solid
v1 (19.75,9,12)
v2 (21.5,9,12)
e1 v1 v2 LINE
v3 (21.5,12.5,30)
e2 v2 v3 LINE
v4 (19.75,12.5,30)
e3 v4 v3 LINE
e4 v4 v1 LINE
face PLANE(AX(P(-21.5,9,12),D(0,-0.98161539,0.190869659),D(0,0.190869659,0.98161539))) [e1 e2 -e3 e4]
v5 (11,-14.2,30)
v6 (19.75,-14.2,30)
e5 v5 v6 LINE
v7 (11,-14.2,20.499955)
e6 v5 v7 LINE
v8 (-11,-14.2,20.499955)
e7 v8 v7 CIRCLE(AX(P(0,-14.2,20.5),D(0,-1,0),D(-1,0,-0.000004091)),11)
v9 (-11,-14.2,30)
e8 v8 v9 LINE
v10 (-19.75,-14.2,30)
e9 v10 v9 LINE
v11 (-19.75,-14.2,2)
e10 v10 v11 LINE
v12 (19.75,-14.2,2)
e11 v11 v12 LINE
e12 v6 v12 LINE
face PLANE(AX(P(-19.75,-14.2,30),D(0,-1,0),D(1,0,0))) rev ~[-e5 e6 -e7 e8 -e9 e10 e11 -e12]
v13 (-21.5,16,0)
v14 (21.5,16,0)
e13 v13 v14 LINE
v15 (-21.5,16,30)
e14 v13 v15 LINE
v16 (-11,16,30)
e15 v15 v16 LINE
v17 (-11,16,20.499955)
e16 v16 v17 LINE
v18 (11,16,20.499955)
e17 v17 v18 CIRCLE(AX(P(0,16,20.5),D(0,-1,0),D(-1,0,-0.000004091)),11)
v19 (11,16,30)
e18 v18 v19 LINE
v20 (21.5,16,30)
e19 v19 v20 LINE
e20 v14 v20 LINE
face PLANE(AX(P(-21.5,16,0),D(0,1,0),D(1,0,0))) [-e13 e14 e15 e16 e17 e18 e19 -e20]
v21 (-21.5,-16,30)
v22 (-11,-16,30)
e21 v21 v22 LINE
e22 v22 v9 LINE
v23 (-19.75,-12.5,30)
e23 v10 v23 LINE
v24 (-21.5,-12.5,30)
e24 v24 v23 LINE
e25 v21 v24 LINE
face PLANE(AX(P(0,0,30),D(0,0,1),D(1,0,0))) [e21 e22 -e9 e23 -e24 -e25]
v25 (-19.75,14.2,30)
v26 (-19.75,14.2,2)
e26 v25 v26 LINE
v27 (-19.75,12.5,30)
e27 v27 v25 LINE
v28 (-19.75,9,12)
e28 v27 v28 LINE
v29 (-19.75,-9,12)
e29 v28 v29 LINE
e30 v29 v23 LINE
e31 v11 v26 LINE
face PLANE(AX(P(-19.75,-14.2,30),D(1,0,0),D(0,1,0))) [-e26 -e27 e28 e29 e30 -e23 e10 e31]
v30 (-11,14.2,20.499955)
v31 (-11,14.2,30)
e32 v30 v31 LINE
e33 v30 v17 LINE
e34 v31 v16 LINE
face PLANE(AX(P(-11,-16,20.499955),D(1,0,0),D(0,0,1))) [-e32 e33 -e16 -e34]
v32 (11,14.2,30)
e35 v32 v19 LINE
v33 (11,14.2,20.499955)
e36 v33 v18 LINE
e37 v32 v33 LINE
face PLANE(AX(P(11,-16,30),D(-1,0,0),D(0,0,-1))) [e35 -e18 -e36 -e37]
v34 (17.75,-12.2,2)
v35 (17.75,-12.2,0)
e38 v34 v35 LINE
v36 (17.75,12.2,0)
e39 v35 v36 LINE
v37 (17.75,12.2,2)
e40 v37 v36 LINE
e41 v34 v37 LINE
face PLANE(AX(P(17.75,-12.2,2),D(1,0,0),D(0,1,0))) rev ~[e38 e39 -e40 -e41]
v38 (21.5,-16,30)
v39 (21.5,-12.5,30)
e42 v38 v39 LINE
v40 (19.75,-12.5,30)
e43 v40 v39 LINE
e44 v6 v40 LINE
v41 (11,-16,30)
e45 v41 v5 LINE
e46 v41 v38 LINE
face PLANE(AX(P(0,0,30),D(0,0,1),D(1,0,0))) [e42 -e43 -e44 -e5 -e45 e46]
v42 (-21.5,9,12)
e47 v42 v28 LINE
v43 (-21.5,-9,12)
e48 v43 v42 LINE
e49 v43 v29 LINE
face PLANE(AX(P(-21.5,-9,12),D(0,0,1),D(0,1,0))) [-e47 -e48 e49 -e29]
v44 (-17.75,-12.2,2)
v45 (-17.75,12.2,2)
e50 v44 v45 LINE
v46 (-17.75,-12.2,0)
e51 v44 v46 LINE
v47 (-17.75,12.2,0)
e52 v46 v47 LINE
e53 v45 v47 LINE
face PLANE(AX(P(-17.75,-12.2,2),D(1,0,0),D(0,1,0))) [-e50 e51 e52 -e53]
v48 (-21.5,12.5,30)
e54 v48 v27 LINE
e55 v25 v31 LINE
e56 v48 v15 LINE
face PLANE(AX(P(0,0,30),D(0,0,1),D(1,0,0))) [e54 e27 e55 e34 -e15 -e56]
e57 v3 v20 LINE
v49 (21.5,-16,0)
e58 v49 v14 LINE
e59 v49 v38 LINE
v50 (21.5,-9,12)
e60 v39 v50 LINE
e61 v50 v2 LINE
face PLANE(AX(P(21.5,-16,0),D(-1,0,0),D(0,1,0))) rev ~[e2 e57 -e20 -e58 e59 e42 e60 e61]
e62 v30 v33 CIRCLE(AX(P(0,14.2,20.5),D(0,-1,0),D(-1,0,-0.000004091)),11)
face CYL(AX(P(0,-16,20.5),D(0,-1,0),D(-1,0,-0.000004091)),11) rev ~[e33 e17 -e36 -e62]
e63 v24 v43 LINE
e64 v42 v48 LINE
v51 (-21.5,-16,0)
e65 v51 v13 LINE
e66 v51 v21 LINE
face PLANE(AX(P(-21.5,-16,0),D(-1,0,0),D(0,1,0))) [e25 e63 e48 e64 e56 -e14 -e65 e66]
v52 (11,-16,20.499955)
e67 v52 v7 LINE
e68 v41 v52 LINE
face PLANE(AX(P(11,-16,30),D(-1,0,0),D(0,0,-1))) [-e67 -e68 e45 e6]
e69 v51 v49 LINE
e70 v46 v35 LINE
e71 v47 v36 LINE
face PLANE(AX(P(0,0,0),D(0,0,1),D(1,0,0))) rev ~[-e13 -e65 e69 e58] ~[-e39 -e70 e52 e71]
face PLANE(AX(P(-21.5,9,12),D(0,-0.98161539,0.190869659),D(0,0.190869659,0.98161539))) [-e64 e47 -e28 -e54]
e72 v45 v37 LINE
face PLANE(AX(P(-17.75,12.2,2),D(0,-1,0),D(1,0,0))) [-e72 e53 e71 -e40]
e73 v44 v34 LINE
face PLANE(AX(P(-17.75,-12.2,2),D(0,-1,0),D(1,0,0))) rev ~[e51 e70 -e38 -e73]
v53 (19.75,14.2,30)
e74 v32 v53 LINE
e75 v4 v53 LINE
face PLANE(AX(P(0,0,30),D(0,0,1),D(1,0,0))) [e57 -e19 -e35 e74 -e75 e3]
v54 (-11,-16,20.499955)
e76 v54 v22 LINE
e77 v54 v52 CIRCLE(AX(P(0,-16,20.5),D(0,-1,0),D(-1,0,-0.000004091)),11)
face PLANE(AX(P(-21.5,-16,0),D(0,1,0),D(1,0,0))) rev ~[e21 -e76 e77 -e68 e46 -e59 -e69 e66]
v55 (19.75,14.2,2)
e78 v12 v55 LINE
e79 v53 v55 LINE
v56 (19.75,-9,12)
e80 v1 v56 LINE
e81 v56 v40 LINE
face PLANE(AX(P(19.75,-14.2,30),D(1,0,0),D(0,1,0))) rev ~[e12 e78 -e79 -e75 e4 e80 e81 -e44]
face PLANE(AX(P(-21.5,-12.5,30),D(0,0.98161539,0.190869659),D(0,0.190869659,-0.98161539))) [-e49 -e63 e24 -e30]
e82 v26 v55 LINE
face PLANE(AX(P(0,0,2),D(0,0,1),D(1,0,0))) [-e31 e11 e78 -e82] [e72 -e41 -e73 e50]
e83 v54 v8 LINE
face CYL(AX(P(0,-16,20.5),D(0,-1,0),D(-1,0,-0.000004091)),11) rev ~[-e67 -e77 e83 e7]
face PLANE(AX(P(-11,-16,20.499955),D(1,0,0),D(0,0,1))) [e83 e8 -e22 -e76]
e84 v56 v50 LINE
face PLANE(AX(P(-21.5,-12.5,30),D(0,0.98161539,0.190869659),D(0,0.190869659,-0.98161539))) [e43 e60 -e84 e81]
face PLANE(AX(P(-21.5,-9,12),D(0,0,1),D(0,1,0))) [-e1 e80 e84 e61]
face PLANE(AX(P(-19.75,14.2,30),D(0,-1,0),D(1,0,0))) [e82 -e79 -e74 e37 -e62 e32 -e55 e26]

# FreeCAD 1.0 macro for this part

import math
import FreeCAD as App
import Part
import Sketcher

doc = App.newDocument("Part")
params = doc.addObject("Spreadsheet::Sheet", "Params")
for row, (alias, value) in enumerate([
    ("sketch1_width", "43 mm"),
    ("sketch1_height", "32 mm"),
    ("pad1_length", "30 mm"),
    ("sketch2_width", "39.5 mm"),
    ("sketch2_height", "28.4 mm"),
    ("pocket1_length", "28 mm"),
    ("sketch3_radius", "11 mm"),
    ("sketch4_width", "35.5 mm"),
    ("sketch4_height", "24.4 mm"),
    ("sketch5_width", "25 mm"),
    ("sketch5_width2", "18 mm"),
], start=1):
    params.set(f"A{row}", alias)
    params.set(f"B{row}", "=" + value)
    params.setAlias(f"B{row}", alias)

body = doc.addObject("PartDesign::Body", "Body")

# Sketch on XY plane
sketch1 = doc.addObject("Sketcher::SketchObject", "Sketch")
body.addObject(sketch1)
sketch1.AttachmentSupport = (doc.XY_Plane, [""])
sketch1.MapMode = "FlatFace"
sketch1.addGeometry(Part.LineSegment(App.Vector(-22, 16, 0), App.Vector(-22, -16, 0)), False)
sketch1.addGeometry(Part.LineSegment(App.Vector(-22, -16, 0), App.Vector(22, -16, 0)), False)
sketch1.addGeometry(Part.LineSegment(App.Vector(22, -16, 0), App.Vector(22, 16, 0)), False)
sketch1.addGeometry(Part.LineSegment(App.Vector(22, 16, 0), App.Vector(-22, 16, 0)), False)
sketch1.addConstraint(Sketcher.Constraint("Coincident", 0, 2, 1, 1))
sketch1.addConstraint(Sketcher.Constraint("Coincident", 1, 2, 2, 1))
sketch1.addConstraint(Sketcher.Constraint("Coincident", 2, 2, 3, 1))
sketch1.addConstraint(Sketcher.Constraint("Coincident", 3, 2, 0, 1))
sketch1.addConstraint(Sketcher.Constraint("Vertical", 0))
sketch1.addConstraint(Sketcher.Constraint("Horizontal", 1))
sketch1.addConstraint(Sketcher.Constraint("Vertical", 2))
sketch1.addConstraint(Sketcher.Constraint("Horizontal", 3))
sketch1.addConstraint(Sketcher.Constraint("Symmetric", 0, 2, 2, 2, -1, 1))
sketch1.addConstraint(Sketcher.Constraint("DistanceX", 1, 1, 1, 2, 43.0))
sketch1.addConstraint(Sketcher.Constraint("DistanceY", 0, 2, 0, 1, 32.0))
sketch1.setExpression("Constraints[9]", "Params.sketch1_width")
sketch1.setExpression("Constraints[10]", "Params.sketch1_height")
pad1 = doc.addObject("PartDesign::Pad", "Pad")
body.addObject(pad1)
pad1.Profile = sketch1
pad1.setExpression("Length", "Params.pad1_length")

# Sketch on XY plane
sketch2 = doc.addObject("Sketcher::SketchObject", "Sketch001")
body.addObject(sketch2)
sketch2.AttachmentSupport = (doc.XY_Plane, [""])
sketch2.MapMode = "FlatFace"
sketch2.AttachmentOffset = App.Placement(App.Vector(0, 0, 30), App.Rotation())
sketch2.addGeometry(Part.LineSegment(App.Vector(-20, 14, 0), App.Vector(-20, -14, 0)), False)
sketch2.addGeometry(Part.LineSegment(App.Vector(-20, -14, 0), App.Vector(20, -14, 0)), False)
sketch2.addGeometry(Part.LineSegment(App.Vector(20, -14, 0), App.Vector(20, 14, 0)), False)
sketch2.addGeometry(Part.LineSegment(App.Vector(20, 14, 0), App.Vector(-20, 14, 0)), False)
sketch2.addConstraint(Sketcher.Constraint("Coincident", 0, 2, 1, 1))
sketch2.addConstraint(Sketcher.Constraint("Coincident", 1, 2, 2, 1))
sketch2.addConstraint(Sketcher.Constraint("Coincident", 2, 2, 3, 1))
sketch2.addConstraint(Sketcher.Constraint("Coincident", 3, 2, 0, 1))
sketch2.addConstraint(Sketcher.Constraint("Vertical", 0))
sketch2.addConstraint(Sketcher.Constraint("Horizontal", 1))
sketch2.addConstraint(Sketcher.Constraint("Vertical", 2))
sketch2.addConstraint(Sketcher.Constraint("Horizontal", 3))
sketch2.addConstraint(Sketcher.Constraint("Symmetric", 0, 2, 2, 2, -1, 1))
sketch2.addConstraint(Sketcher.Constraint("DistanceX", 1, 1, 1, 2, 39.5))
sketch2.addConstraint(Sketcher.Constraint("DistanceY", 0, 2, 0, 1, 28.4))
sketch2.setExpression("Constraints[9]", "Params.sketch2_width")
sketch2.setExpression("Constraints[10]", "Params.sketch2_height")
pocket1 = doc.addObject("PartDesign::Pocket", "Pocket")
body.addObject(pocket1)
pocket1.Profile = sketch2
pocket1.setExpression("Length", "Params.pocket1_length")

# Sketch on XZ plane
sketch3 = doc.addObject("Sketcher::SketchObject", "Sketch002")
body.addObject(sketch3)
sketch3.AttachmentSupport = (doc.XZ_Plane, [""])
sketch3.MapMode = "FlatFace"
sketch3.AttachmentOffset = App.Placement(App.Vector(0, 0, 16), App.Rotation())
sketch3.addGeometry(Part.LineSegment(App.Vector(11, 30, 0), App.Vector(-11, 30, 0)), False)
sketch3.addGeometry(Part.LineSegment(App.Vector(-11, 30, 0), App.Vector(-11, 20, 0)), False)
sketch3.addGeometry(Part.ArcOfCircle(Part.Circle(App.Vector(0, 20, 0), App.Vector(0, 0, 1), 11), math.radians(-180), math.radians(0)), False)
sketch3.addGeometry(Part.LineSegment(App.Vector(11, 20, 0), App.Vector(11, 30, 0)), False)
sketch3.addConstraint(Sketcher.Constraint("Coincident", 0, 2, 1, 1))
sketch3.addConstraint(Sketcher.Constraint("Coincident", 1, 2, 2, 1))
sketch3.addConstraint(Sketcher.Constraint("Coincident", 2, 2, 3, 1))
sketch3.addConstraint(Sketcher.Constraint("Coincident", 3, 2, 0, 1))
sketch3.addConstraint(Sketcher.Constraint("Horizontal", 0))
sketch3.addConstraint(Sketcher.Constraint("Vertical", 1))
sketch3.addConstraint(Sketcher.Constraint("Vertical", 3))
sketch3.addConstraint(Sketcher.Constraint("Symmetric", 1, 2, 2, 2, -2))
sketch3.addConstraint(Sketcher.Constraint("Radius", 2, 11.0))
sketch3.addConstraint(Sketcher.Constraint("DistanceY", -1, 1, 0, 2, 30.0))
sketch3.addConstraint(Sketcher.Constraint("DistanceY", -1, 1, 2, 3, 20.5))
sketch3.addConstraint(Sketcher.Constraint("DistanceY", 1, 2, 1, 1, 9.500045))
sketch3.setExpression("Constraints[8]", "Params.sketch3_radius")
pocket2 = doc.addObject("PartDesign::Pocket", "Pocket001")
body.addObject(pocket2)
pocket2.Profile = sketch3
pocket2.Type = "ThroughAll"

# Sketch on XY plane
sketch4 = doc.addObject("Sketcher::SketchObject", "Sketch003")
body.addObject(sketch4)
sketch4.AttachmentSupport = (doc.XY_Plane, [""])
sketch4.MapMode = "FlatFace"
sketch4.AttachmentOffset = App.Placement(App.Vector(0, 0, 2), App.Rotation())
sketch4.addGeometry(Part.LineSegment(App.Vector(-18, 12, 0), App.Vector(-18, -12, 0)), False)
sketch4.addGeometry(Part.LineSegment(App.Vector(-18, -12, 0), App.Vector(18, -12, 0)), False)
sketch4.addGeometry(Part.LineSegment(App.Vector(18, -12, 0), App.Vector(18, 12, 0)), False)
sketch4.addGeometry(Part.LineSegment(App.Vector(18, 12, 0), App.Vector(-18, 12, 0)), False)
sketch4.addConstraint(Sketcher.Constraint("Coincident", 0, 2, 1, 1))
sketch4.addConstraint(Sketcher.Constraint("Coincident", 1, 2, 2, 1))
sketch4.addConstraint(Sketcher.Constraint("Coincident", 2, 2, 3, 1))
sketch4.addConstraint(Sketcher.Constraint("Coincident", 3, 2, 0, 1))
sketch4.addConstraint(Sketcher.Constraint("Vertical", 0))
sketch4.addConstraint(Sketcher.Constraint("Horizontal", 1))
sketch4.addConstraint(Sketcher.Constraint("Vertical", 2))
sketch4.addConstraint(Sketcher.Constraint("Horizontal", 3))
sketch4.addConstraint(Sketcher.Constraint("Symmetric", 0, 2, 2, 2, -1, 1))
sketch4.addConstraint(Sketcher.Constraint("DistanceX", 1, 1, 1, 2, 35.5))
sketch4.addConstraint(Sketcher.Constraint("DistanceY", 0, 2, 0, 1, 24.4))
sketch4.setExpression("Constraints[9]", "Params.sketch4_width")
sketch4.setExpression("Constraints[10]", "Params.sketch4_height")
pocket3 = doc.addObject("PartDesign::Pocket", "Pocket002")
body.addObject(pocket3)
pocket3.Profile = sketch4
pocket3.Type = "ThroughAll"

# Sketch on YZ plane
sketch5 = doc.addObject("Sketcher::SketchObject", "Sketch004")
body.addObject(sketch5)
sketch5.AttachmentSupport = (doc.YZ_Plane, [""])
sketch5.MapMode = "FlatFace"
sketch5.AttachmentOffset = App.Placement(App.Vector(0, 0, -21.5), App.Rotation())
sketch5.addGeometry(Part.LineSegment(App.Vector(-12, 30, 0), App.Vector(12, 30, 0)), False)
sketch5.addGeometry(Part.LineSegment(App.Vector(12, 30, 0), App.Vector(9, 12, 0)), False)
sketch5.addGeometry(Part.LineSegment(App.Vector(9, 12, 0), App.Vector(-9, 12, 0)), False)
sketch5.addGeometry(Part.LineSegment(App.Vector(-9, 12, 0), App.Vector(-12, 30, 0)), False)
sketch5.addConstraint(Sketcher.Constraint("Coincident", 0, 2, 1, 1))
sketch5.addConstraint(Sketcher.Constraint("Coincident", 1, 2, 2, 1))
sketch5.addConstraint(Sketcher.Constraint("Coincident", 2, 2, 3, 1))
sketch5.addConstraint(Sketcher.Constraint("Coincident", 3, 2, 0, 1))
sketch5.addConstraint(Sketcher.Constraint("Horizontal", 0))
sketch5.addConstraint(Sketcher.Constraint("Horizontal", 2))
sketch5.addConstraint(Sketcher.Constraint("Equal", 1, 3))
sketch5.addConstraint(Sketcher.Constraint("DistanceX", 0, 1, 0, 2, 25.0))
sketch5.addConstraint(Sketcher.Constraint("DistanceX", 2, 2, 2, 1, 18.0))
sketch5.addConstraint(Sketcher.Constraint("DistanceY", -1, 1, 0, 2, 30.0))
sketch5.addConstraint(Sketcher.Constraint("DistanceX", -1, 1, 1, 2, 9.0))
sketch5.addConstraint(Sketcher.Constraint("DistanceY", -1, 1, 1, 2, 12.0))
sketch5.setExpression("Constraints[7]", "Params.sketch5_width")
sketch5.setExpression("Constraints[8]", "Params.sketch5_width2")
pocket4 = doc.addObject("PartDesign::Pocket", "Pocket003")
body.addObject(pocket4)
pocket4.Profile = sketch5
pocket4.Type = "ThroughAll"
pocket4.Reversed = True

doc.recompute()
